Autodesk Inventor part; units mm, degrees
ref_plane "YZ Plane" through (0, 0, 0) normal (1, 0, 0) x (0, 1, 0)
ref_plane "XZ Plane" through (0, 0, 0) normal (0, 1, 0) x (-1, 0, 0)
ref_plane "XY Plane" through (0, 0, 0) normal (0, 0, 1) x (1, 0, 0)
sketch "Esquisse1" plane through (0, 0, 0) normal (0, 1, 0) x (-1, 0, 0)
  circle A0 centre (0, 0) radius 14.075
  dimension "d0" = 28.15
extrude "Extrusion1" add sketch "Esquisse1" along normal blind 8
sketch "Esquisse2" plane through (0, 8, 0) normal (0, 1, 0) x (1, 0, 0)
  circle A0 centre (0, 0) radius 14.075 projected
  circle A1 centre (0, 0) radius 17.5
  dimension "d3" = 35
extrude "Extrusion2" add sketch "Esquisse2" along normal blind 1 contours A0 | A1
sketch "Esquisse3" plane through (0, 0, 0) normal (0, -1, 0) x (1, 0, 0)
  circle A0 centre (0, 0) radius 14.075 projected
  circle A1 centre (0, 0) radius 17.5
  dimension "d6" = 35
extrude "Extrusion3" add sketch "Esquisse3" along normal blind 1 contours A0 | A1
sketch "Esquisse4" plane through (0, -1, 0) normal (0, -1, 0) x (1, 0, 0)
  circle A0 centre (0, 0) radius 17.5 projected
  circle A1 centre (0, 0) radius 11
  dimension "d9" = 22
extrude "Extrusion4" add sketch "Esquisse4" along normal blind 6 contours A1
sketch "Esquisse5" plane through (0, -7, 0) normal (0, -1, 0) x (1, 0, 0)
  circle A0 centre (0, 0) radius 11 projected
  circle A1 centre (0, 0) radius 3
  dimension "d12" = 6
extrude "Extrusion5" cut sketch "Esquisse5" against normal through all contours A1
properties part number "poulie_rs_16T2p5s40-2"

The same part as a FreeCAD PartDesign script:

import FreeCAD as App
import Part
import Sketcher

doc = App.newDocument("Part")
body = doc.addObject("PartDesign::Body", "Body")

# Sketch on XZ plane
sketch1 = doc.addObject("Sketcher::SketchObject", "Sketch")
body.addObject(sketch1)
sketch1.AttachmentSupport = (doc.XZ_Plane, [""])
sketch1.MapMode = "FlatFace"
sketch1.addGeometry(Part.Circle(App.Vector(0, 0, 0), App.Vector(0, 0, 1), 14), False)
sketch1.addConstraint(Sketcher.Constraint("Coincident", 0, 3, -1, 1))
sketch1.addConstraint(Sketcher.Constraint("Diameter", 0, 28.15))
pad1 = doc.addObject("PartDesign::Pad", "Pad")
body.addObject(pad1)
pad1.Profile = sketch1
pad1.Length = 8
pad1.Reversed = True

# Sketch on XZ plane
sketch2 = doc.addObject("Sketcher::SketchObject", "Sketch001")
body.addObject(sketch2)
sketch2.AttachmentSupport = (doc.XZ_Plane, [""])
sketch2.MapMode = "FlatFace"
sketch2.AttachmentOffset = App.Placement(App.Vector(0, 0, -8), App.Rotation())
sketch2.addGeometry(Part.Circle(App.Vector(0, 0, 0), App.Vector(0, 0, 1), 18), False)
sketch2.addConstraint(Sketcher.Constraint("Coincident", 0, 3, -1, 1))
sketch2.addConstraint(Sketcher.Constraint("Diameter", 0, 35.0))
pad2 = doc.addObject("PartDesign::Pad", "Pad001")
body.addObject(pad2)
pad2.Profile = sketch2
pad2.Length = 1
pad2.Reversed = True

# Sketch on XZ plane
sketch3 = doc.addObject("Sketcher::SketchObject", "Sketch002")
body.addObject(sketch3)
sketch3.AttachmentSupport = (doc.XZ_Plane, [""])
sketch3.MapMode = "FlatFace"
sketch3.addGeometry(Part.Circle(App.Vector(0, 0, 0), App.Vector(0, 0, 1), 18), False)
sketch3.addConstraint(Sketcher.Constraint("Coincident", 0, 3, -1, 1))
sketch3.addConstraint(Sketcher.Constraint("Diameter", 0, 35.0))
pad3 = doc.addObject("PartDesign::Pad", "Pad002")
body.addObject(pad3)
pad3.Profile = sketch3
pad3.Length = 1

# Sketch on XZ plane
sketch4 = doc.addObject("Sketcher::SketchObject", "Sketch003")
body.addObject(sketch4)
sketch4.AttachmentSupport = (doc.XZ_Plane, [""])
sketch4.MapMode = "FlatFace"
sketch4.AttachmentOffset = App.Placement(App.Vector(0, 0, 1), App.Rotation())
sketch4.addGeometry(Part.Circle(App.Vector(0, 0, 0), App.Vector(0, 0, 1), 11), False)
sketch4.addConstraint(Sketcher.Constraint("Coincident", 0, 3, -1, 1))
sketch4.addConstraint(Sketcher.Constraint("Diameter", 0, 22.0))
pad4 = doc.addObject("PartDesign::Pad", "Pad003")
body.addObject(pad4)
pad4.Profile = sketch4
pad4.Length = 6

# Sketch on XZ plane
sketch5 = doc.addObject("Sketcher::SketchObject", "Sketch004")
body.addObject(sketch5)
sketch5.AttachmentSupport = (doc.XZ_Plane, [""])
sketch5.MapMode = "FlatFace"
sketch5.AttachmentOffset = App.Placement(App.Vector(0, 0, 7), App.Rotation())
sketch5.addGeometry(Part.Circle(App.Vector(0, 0, 0), App.Vector(0, 0, 1), 3), False)
sketch5.addConstraint(Sketcher.Constraint("Coincident", 0, 3, -1, 1))
sketch5.addConstraint(Sketcher.Constraint("Diameter", 0, 6.0))
pocket1 = doc.addObject("PartDesign::Pocket", "Pocket")
body.addObject(pocket1)
pocket1.Profile = sketch5
pocket1.Type = "ThroughAll"

doc.recompute()
